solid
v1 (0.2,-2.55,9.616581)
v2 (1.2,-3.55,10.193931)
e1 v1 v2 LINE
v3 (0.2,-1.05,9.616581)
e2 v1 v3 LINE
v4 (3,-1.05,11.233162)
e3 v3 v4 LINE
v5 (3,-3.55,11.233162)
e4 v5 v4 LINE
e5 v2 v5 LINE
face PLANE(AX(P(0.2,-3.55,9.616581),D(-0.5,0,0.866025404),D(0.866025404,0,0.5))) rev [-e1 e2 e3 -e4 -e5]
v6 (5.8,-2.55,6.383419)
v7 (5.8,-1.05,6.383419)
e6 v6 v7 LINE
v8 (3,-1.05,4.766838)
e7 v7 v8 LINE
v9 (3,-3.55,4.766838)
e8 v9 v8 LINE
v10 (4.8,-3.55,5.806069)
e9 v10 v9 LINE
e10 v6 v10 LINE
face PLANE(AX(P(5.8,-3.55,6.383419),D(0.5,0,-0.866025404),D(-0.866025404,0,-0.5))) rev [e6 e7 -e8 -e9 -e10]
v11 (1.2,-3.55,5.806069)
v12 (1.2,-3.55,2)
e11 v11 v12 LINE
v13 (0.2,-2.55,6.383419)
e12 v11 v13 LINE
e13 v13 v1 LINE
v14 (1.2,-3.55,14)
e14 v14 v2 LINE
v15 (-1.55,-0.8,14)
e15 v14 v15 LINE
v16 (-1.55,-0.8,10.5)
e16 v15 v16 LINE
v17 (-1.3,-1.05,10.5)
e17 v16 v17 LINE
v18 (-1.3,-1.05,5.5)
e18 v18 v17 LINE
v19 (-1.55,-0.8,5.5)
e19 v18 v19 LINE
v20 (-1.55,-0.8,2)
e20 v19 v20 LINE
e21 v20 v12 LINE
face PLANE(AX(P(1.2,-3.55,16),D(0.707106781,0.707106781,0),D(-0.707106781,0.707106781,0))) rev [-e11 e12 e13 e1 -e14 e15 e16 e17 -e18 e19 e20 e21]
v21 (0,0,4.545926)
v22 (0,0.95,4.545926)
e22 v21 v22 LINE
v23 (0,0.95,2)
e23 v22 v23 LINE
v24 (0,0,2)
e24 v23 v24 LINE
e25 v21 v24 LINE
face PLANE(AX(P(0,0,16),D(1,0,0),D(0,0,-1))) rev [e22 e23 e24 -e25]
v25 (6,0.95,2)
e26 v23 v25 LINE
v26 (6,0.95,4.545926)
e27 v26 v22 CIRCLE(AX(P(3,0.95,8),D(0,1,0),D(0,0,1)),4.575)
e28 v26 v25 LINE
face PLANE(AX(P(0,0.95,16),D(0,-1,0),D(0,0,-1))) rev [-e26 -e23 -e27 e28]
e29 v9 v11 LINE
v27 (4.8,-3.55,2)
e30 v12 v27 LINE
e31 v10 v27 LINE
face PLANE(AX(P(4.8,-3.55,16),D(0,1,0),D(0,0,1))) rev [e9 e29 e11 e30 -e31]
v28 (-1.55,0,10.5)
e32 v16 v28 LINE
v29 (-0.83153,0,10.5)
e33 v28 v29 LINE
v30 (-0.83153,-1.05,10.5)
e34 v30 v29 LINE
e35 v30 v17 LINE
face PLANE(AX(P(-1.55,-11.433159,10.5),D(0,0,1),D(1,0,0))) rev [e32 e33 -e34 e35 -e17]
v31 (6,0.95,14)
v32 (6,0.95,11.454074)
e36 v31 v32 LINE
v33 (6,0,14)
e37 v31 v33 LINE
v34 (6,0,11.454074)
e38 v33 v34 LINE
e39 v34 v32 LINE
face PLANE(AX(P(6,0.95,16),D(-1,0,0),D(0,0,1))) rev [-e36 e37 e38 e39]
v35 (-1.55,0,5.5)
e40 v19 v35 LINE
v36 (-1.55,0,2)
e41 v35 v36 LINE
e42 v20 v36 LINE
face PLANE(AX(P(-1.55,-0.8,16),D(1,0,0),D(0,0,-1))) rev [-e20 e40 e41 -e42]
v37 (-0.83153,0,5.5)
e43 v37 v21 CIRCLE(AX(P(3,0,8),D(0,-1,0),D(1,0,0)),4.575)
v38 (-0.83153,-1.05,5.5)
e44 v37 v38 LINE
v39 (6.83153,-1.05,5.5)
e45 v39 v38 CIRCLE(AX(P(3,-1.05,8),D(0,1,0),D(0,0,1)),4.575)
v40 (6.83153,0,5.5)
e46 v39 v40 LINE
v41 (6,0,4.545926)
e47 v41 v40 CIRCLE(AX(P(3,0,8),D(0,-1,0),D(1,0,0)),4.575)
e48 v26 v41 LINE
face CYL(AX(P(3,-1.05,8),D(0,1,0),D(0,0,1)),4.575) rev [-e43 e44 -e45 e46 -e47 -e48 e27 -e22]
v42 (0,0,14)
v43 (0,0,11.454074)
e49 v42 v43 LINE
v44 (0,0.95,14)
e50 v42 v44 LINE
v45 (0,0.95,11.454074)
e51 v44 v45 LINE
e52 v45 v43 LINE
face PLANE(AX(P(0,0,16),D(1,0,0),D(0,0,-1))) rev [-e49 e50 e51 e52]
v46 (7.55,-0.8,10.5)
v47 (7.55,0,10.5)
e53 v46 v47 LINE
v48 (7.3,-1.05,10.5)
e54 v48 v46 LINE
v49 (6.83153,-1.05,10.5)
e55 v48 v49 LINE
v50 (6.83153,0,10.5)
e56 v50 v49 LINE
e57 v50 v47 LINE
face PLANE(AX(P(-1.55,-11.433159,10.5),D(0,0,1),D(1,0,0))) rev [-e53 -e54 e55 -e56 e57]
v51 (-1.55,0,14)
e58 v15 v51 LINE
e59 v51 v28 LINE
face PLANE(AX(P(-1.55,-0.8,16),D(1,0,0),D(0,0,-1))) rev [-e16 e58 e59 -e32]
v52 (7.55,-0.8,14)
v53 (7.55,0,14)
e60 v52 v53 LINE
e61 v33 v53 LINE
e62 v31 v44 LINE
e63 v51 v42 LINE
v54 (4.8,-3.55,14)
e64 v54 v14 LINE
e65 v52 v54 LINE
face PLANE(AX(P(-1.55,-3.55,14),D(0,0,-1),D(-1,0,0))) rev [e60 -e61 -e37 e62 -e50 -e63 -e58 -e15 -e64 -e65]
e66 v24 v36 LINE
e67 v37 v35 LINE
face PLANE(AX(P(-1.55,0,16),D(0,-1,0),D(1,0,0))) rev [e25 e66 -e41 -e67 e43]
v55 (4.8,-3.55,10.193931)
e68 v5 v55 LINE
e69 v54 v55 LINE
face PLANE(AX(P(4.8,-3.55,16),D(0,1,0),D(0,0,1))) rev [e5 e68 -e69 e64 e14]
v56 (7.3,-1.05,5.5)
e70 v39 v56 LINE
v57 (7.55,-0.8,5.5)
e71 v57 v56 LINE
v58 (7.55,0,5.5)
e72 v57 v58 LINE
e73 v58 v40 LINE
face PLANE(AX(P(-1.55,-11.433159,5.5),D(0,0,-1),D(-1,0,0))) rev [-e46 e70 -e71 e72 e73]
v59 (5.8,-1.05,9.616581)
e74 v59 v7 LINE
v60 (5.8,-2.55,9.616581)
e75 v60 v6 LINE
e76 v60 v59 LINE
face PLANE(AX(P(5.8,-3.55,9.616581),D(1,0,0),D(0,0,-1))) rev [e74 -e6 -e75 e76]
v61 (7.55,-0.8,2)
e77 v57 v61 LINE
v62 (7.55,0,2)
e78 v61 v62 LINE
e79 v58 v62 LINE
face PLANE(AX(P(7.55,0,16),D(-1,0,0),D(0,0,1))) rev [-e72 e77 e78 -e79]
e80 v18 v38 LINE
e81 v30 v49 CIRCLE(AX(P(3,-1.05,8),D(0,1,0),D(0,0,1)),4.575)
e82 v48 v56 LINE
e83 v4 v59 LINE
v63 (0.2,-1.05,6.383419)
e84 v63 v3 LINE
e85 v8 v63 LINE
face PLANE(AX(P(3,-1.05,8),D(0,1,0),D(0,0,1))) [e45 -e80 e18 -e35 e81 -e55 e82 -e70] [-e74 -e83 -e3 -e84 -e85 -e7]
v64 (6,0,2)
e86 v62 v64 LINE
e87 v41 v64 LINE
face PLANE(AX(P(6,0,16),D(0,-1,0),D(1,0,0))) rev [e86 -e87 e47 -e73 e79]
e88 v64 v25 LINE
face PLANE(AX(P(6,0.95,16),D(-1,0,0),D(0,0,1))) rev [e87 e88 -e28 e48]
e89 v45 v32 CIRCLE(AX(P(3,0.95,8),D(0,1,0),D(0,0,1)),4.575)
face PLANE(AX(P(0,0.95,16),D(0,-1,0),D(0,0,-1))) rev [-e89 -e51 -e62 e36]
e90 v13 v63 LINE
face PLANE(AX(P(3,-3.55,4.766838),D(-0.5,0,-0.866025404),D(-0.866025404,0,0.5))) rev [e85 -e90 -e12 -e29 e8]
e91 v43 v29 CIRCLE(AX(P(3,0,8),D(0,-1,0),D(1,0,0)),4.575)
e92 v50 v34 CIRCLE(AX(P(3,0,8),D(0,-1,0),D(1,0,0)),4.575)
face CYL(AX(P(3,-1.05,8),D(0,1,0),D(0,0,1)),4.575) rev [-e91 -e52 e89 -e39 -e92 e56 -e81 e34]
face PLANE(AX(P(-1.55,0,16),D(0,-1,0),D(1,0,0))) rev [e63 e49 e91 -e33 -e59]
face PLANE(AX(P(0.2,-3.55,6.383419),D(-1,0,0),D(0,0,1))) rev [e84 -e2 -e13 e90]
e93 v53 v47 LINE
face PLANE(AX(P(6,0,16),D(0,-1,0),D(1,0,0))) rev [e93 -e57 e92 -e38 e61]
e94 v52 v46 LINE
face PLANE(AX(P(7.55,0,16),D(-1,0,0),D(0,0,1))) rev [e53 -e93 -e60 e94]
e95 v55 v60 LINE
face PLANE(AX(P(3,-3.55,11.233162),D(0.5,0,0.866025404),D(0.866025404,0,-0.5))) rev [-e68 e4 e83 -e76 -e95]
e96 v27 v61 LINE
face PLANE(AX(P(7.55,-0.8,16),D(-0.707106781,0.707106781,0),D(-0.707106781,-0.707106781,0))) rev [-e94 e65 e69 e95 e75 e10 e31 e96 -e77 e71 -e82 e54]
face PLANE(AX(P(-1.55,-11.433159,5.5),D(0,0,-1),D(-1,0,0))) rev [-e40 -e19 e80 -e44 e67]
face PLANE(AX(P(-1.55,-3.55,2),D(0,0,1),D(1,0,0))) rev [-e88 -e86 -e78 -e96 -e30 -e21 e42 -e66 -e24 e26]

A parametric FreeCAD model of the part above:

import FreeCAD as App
import Part
import Sketcher
from FreeCAD import Vector
Q = App.Units.Quantity


def add_polygon(sketch, points):
    """Adds a closed chain of lines whose ends are joined by coincident constraints."""
    first, n = sketch.GeometryCount, len(points)
    for a, b in zip(points, points[1:] + points[:1]):
        sketch.addGeometry(Part.LineSegment(App.Vector(*a, 0), App.Vector(*b, 0)), False)
    for i in range(n):
        sketch.addConstraint(Sketcher.Constraint("Coincident", first + i, 2, first + (i + 1) % n, 1))

doc = App.newDocument("Part")
params = doc.addObject("Spreadsheet::Sheet", "Params")
for row, (alias, value) in enumerate([
    ("sketch1_width", "6 mm"),
    ("sketch1_width2", "3.6 mm"),
    ("sketch1_height", "0.8 mm"),
    ("sketch1_width3", "1.55 mm"),
    ("sketch1_height2", "0.95 mm"),
    ("pad1_length", "16 mm"),
    ("sketch2_diameter", "9.15 mm"),
    ("pocket1_length", "2 mm"),
    ("sketch4_height", "5 mm"),
    ("sketch4_width", "9.1 mm"),
    ("pocket3_length", "1.05 mm"),
    ("sketch5_height", "2 mm"),
    ("sketch5_width", "9.1 mm"),
], start=1):
    params.set(f"A{row}", alias)
    params.set(f"B{row}", "=" + value)
    params.setAlias(f"B{row}", alias)

body = doc.addObject("PartDesign::Body", "Body")

sketch1 = body.newObject("Sketcher::SketchObject", "Sketch")
sketch1.AttachmentSupport = (doc.getObject("XY_Plane"), [""])
sketch1.MapMode = "FlatFace"
add_polygon(sketch1, [(0, 0.95), (0, 0), (-1.55, 0), (-1.55, -0.8), (1.2, -3.55), (4.8, -3.55), (7.55, -0.8), (7.55, 0), (6, 0), (6, 0.95)])
sketch1.addConstraint([
    Sketcher.Constraint("Vertical", 0),
    Sketcher.Constraint("Horizontal", 1),
    Sketcher.Constraint("Vertical", 2),
    Sketcher.Constraint("Horizontal", 4),
    Sketcher.Constraint("Vertical", 6),
    Sketcher.Constraint("Horizontal", 7),
    Sketcher.Constraint("Vertical", 8),
    Sketcher.Constraint("Horizontal", 9),
    Sketcher.Constraint("Coincident", 0, 2, -1, 1),
    Sketcher.Constraint("PointOnObject", 6, 2, -1),
    Sketcher.Constraint("Perpendicular", 3, 5),
    Sketcher.Constraint("Horizontal", 2, 2, 5, 2),
    Sketcher.Constraint("Equal", 1, 7),
    Sketcher.Constraint("Equal", 3, 5),
    Sketcher.Constraint("DistanceX", 9, 2, 9, 1, 6.0),
    Sketcher.Constraint("DistanceX", 4, 1, 4, 2, 3.6),
    Sketcher.Constraint("DistanceY", 2, 2, 2, 1, 0.8),
    Sketcher.Constraint("DistanceX", 1, 2, 1, 1, 1.55),
    Sketcher.Constraint("DistanceY", 0, 2, 0, 1, 0.95),
])
sketch1.setExpression("Constraints[24]", "Params.sketch1_width")
sketch1.setExpression("Constraints[25]", "Params.sketch1_width2")
sketch1.setExpression("Constraints[26]", "Params.sketch1_height")
sketch1.setExpression("Constraints[27]", "Params.sketch1_width3")
sketch1.setExpression("Constraints[28]", "Params.sketch1_height2")
pad1 = body.newObject("PartDesign::Pad", "Pad")
pad1.Profile = sketch1
pad1.setExpression("Length", "Params.pad1_length")

sketch2 = body.newObject("Sketcher::SketchObject", "Sketch001")
sketch2.AttachmentSupport = (doc.getObject("XZ_Plane"), [""])
sketch2.MapMode = "FlatFace"
sketch2.AttachmentOffset = App.Placement(Vector(0, 0, -0.95), App.Rotation())
sketch2.addGeometry(Part.Circle(Vector(3, 8, 0), Vector(0, 0, 1), 4.575), False)
sketch2.addConstraint([
    Sketcher.Constraint("Diameter", 0, 9.15),
    Sketcher.Constraint("DistanceX", -1, 1, 0, 3, 3.0),
    Sketcher.Constraint("DistanceY", -1, 1, 0, 3, 8.0),
])
sketch2.setExpression("Constraints[0]", "Params.sketch2_diameter")
pocket1 = body.newObject("PartDesign::Pocket", "Pocket")
pocket1.Profile = sketch2
pocket1.setExpression("Length", "Params.pocket1_length")
pocket1.Reversed = True

sketch3 = body.newObject("Sketcher::SketchObject", "Sketch002")
sketch3.AttachmentSupport = (doc.getObject("XZ_Plane"), [""])
sketch3.MapMode = "FlatFace"
sketch3.AttachmentOffset = App.Placement(Vector(0, 0, 1.05), App.Rotation())
add_polygon(sketch3, [(3, 4.766838), (0.2, 6.383419), (0.2, 9.616581), (3, 11.233162), (5.8, 9.616581), (5.8, 6.383419)])
sketch3.addConstraint([
    Sketcher.Constraint("Vertical", 1),
    Sketcher.Constraint("Vertical", 4),
    Sketcher.Constraint("Parallel", 0, 3),
    Sketcher.Constraint("Parallel", 2, 5),
    Sketcher.Constraint("Horizontal", 1, 2, 3, 2),
    Sketcher.Constraint("Horizontal", 0, 2, 4, 2),
    Sketcher.Constraint("Vertical", 2, 2, 5, 2),
    Sketcher.Constraint("Angle", 0, Q("150 deg")),
    Sketcher.Constraint("DistanceX", -1, 1, 2, 2, 3.0),
    Sketcher.Constraint("DistanceX", -1, 1, 0, 2, 0.2),
    Sketcher.Constraint("DistanceY", 1, 1, 1, 2, 3.233162),
    Sketcher.Constraint("DistanceY", -1, 1, 0, 2, 6.383419),
])
pocket2 = body.newObject("PartDesign::Pocket", "Pocket001")
pocket2.Profile = sketch3
pocket2.Type = "ThroughAll"
pocket2.Reversed = True

sketch4 = body.newObject("Sketcher::SketchObject", "Sketch003")
sketch4.AttachmentSupport = (doc.getObject("XZ_Plane"), [""])
sketch4.MapMode = "FlatFace"
sketch4.AttachmentOffset = App.Placement(Vector(0, 0, 1.05), App.Rotation())
add_polygon(sketch4, [(-1.55, 5.5), (-1.55, 10.5), (7.55, 10.5), (7.55, 5.5)])
sketch4.addConstraint([
    Sketcher.Constraint("Vertical", 0),
    Sketcher.Constraint("Horizontal", 1),
    Sketcher.Constraint("Vertical", 2),
    Sketcher.Constraint("Horizontal", 3),
    Sketcher.Constraint("DistanceY", 0, 1, 0, 2, 5.0),
    Sketcher.Constraint("DistanceX", 1, 1, 1, 2, 9.1),
    Sketcher.Constraint("DistanceY", -1, 1, 0, 2, 10.5),
    Sketcher.Constraint("DistanceX", 0, 2, -1, 1, 1.55),
])
sketch4.setExpression("Constraints[8]", "Params.sketch4_height")
sketch4.setExpression("Constraints[9]", "Params.sketch4_width")
pocket3 = body.newObject("PartDesign::Pocket", "Pocket002")
pocket3.Profile = sketch4
pocket3.setExpression("Length", "Params.pocket3_length")

sketch5 = body.newObject("Sketcher::SketchObject", "Sketch004")
sketch5.AttachmentSupport = (doc.getObject("XZ_Plane"), [""])
sketch5.MapMode = "FlatFace"
sketch5.AttachmentOffset = App.Placement(Vector(0, 0, -0.95), App.Rotation())
add_polygon(sketch5, [(-1.55, 0), (-1.55, 2), (7.55, 2), (7.55, 0)])
add_polygon(sketch5, [(-1.55, 14), (-1.55, 16), (7.55, 16), (7.55, 14)])
sketch5.addConstraint([
    Sketcher.Constraint("Vertical", 0),
    Sketcher.Constraint("Horizontal", 1),
    Sketcher.Constraint("Vertical", 2),
    Sketcher.Constraint("Horizontal", 3),
    Sketcher.Constraint("Vertical", 4),
    Sketcher.Constraint("Horizontal", 5),
    Sketcher.Constraint("Vertical", 6),
    Sketcher.Constraint("Horizontal", 7),
    Sketcher.Constraint("PointOnObject", 2, 2, -1),
    Sketcher.Constraint("Vertical", 3, 2, 4, 2),
    Sketcher.Constraint("Vertical", 2, 2, 5, 2),
    Sketcher.Constraint("Equal", 2, 4),
    Sketcher.Constraint("DistanceY", 0, 1, 0, 2, 2.0),
    Sketcher.Constraint("DistanceX", 1, 1, 1, 2, 9.1),
    Sketcher.Constraint("DistanceY", -1, 1, 4, 2, 16.0),
    Sketcher.Constraint("DistanceX", 0, 2, -1, 1, 1.55),
])
sketch5.setExpression("Constraints[20]", "Params.sketch5_height")
sketch5.setExpression("Constraints[21]", "Params.sketch5_width")
pocket4 = body.newObject("PartDesign::Pocket", "Pocket003")
pocket4.Profile = sketch5
pocket4.Type = "ThroughAll"
pocket4.Reversed = True

doc.recompute()
